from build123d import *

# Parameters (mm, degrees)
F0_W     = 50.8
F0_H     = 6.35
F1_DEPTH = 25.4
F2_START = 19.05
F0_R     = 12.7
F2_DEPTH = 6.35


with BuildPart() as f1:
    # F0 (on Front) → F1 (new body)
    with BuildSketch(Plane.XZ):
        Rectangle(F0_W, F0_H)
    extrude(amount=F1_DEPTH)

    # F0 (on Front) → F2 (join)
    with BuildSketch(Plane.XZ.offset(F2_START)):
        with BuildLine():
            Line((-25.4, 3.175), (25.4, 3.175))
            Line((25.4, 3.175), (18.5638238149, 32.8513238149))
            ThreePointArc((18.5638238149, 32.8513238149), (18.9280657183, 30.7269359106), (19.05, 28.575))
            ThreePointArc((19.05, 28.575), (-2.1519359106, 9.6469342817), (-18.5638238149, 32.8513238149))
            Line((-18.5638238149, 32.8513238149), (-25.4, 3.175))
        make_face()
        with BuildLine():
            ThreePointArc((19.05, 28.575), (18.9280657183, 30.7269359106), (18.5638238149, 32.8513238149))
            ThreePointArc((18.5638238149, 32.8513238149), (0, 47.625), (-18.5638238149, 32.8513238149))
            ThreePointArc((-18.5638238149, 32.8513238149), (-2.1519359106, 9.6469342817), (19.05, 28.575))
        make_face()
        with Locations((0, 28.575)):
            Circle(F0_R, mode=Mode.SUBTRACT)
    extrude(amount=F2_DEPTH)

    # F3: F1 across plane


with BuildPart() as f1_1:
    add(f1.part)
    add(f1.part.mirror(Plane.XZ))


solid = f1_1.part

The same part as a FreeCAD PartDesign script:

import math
import FreeCAD as App
import Part
import Sketcher
Q = App.Units.Quantity


def add_polygon(sketch, points):
    """Adds a closed chain of lines whose ends are joined by coincident constraints."""
    first, n = sketch.GeometryCount, len(points)
    for a, b in zip(points, points[1:] + points[:1]):
        sketch.addGeometry(Part.LineSegment(App.Vector(*a, 0), App.Vector(*b, 0)), False)
    for i in range(n):
        sketch.addConstraint(Sketcher.Constraint("Coincident", first + i, 2, first + (i + 1) % n, 1))

doc = App.newDocument("Part")
body = doc.addObject("PartDesign::Body", "Body")

sketch1 = body.newObject("Sketcher::SketchObject", "Sketch")
sketch1.AttachmentSupport = (doc.getObject("XZ_Plane"), [""])
sketch1.MapMode = "FlatFace"
add_polygon(sketch1, [(-25.4, 3.175), (-25.4, -3.175), (25.4, -3.175), (25.4, 3.175)])
sketch1.addConstraint(Sketcher.Constraint("Vertical", 0))
sketch1.addConstraint(Sketcher.Constraint("Horizontal", 1))
sketch1.addConstraint(Sketcher.Constraint("Vertical", 2))
sketch1.addConstraint(Sketcher.Constraint("Horizontal", 3))
sketch1.addConstraint(Sketcher.Constraint("Symmetric", 0, 2, 2, 2, -1, 1))
sketch1.addConstraint(Sketcher.Constraint("DistanceX", 1, 1, 1, 2, Q("2 in")))
sketch1.addConstraint(Sketcher.Constraint("DistanceY", 0, 2, 0, 1, Q("0.25 in")))
pad1 = body.newObject("PartDesign::Pad", "Pad")
pad1.Profile = sketch1
pad1.Length = Q("1 in")

sketch2 = body.newObject("Sketcher::SketchObject", "Sketch001")
sketch2.AttachmentSupport = (doc.getObject("XZ_Plane"), [""])
sketch2.MapMode = "FlatFace"
sketch2.AttachmentOffset = App.Placement(App.Vector(0, 0, 0.75 * 25.4), App.Rotation())
sketch2.addGeometry(Part.LineSegment(App.Vector(-25.4, 3.175, 0), App.Vector(25.4, 3.175, 0)), False)
sketch2.addGeometry(Part.LineSegment(App.Vector(25.4, 3.175, 0), App.Vector(18.563824, 32.851324, 0)), False)
sketch2.addGeometry(Part.ArcOfCircle(Part.Circle(App.Vector(0, 28.575, 0), App.Vector(0, 0, 1), 19.05), math.radians(12.97224), math.radians(167.02776)), False)
sketch2.addGeometry(Part.LineSegment(App.Vector(-18.563824, 32.851324, 0), App.Vector(-25.4, 3.175, 0)), False)
sketch2.addGeometry(Part.Circle(App.Vector(0, 28.575, 0), App.Vector(0, 0, 1), 12.7), False)
sketch2.addConstraint(Sketcher.Constraint("Coincident", 0, 2, 1, 1))
sketch2.addConstraint(Sketcher.Constraint("Tangent", 1, 2, 2, 1))
sketch2.addConstraint(Sketcher.Constraint("Tangent", 2, 2, 3, 1))
sketch2.addConstraint(Sketcher.Constraint("Coincident", 3, 2, 0, 1))
sketch2.addConstraint(Sketcher.Constraint("Horizontal", 0))
sketch2.addConstraint(Sketcher.Constraint("Coincident", 4, 3, 2, 3))
sketch2.addConstraint(Sketcher.Constraint("Symmetric", 1, 2, 2, 2, -2))
sketch2.addConstraint(Sketcher.Constraint("Diameter", 4, Q("1 in")))
sketch2.addConstraint(Sketcher.Constraint("DistanceX", 0, 1, 0, 2, Q("2 in")))
sketch2.addConstraint(Sketcher.Constraint("Radius", 2, Q("0.75 in")))
sketch2.addConstraint(Sketcher.Constraint("DistanceY", 0, 2, 2, 3, Q("1 in")))
sketch2.addConstraint(Sketcher.Constraint("DistanceY", -1, 1, 2, 3, Q("1.125 in")))
pad2 = body.newObject("PartDesign::Pad", "Pad001")
pad2.Profile = sketch2
pad2.Length = Q("0.25 in")
body2 = doc.addObject("PartDesign::Body", "Body001")
doc.recompute()

body2.BaseFeature = body
doc.recompute()

mirroring = doc.addObject("Part::Mirroring", "Mirroring")
mirroring.Source = body
mirroring.Base = App.Vector(0, 0, 0)
mirroring.Normal = App.Vector(0, -1, 0)
body3 = doc.addObject("PartDesign::Body", "Body002")
body3.BaseFeature = mirroring
boolean = body2.newObject("PartDesign::Boolean", "Boolean")
boolean.Type = "Fuse"
boolean.addObjects([body3])
doc.recompute()
mirroring.Visibility = False

doc.recompute()
